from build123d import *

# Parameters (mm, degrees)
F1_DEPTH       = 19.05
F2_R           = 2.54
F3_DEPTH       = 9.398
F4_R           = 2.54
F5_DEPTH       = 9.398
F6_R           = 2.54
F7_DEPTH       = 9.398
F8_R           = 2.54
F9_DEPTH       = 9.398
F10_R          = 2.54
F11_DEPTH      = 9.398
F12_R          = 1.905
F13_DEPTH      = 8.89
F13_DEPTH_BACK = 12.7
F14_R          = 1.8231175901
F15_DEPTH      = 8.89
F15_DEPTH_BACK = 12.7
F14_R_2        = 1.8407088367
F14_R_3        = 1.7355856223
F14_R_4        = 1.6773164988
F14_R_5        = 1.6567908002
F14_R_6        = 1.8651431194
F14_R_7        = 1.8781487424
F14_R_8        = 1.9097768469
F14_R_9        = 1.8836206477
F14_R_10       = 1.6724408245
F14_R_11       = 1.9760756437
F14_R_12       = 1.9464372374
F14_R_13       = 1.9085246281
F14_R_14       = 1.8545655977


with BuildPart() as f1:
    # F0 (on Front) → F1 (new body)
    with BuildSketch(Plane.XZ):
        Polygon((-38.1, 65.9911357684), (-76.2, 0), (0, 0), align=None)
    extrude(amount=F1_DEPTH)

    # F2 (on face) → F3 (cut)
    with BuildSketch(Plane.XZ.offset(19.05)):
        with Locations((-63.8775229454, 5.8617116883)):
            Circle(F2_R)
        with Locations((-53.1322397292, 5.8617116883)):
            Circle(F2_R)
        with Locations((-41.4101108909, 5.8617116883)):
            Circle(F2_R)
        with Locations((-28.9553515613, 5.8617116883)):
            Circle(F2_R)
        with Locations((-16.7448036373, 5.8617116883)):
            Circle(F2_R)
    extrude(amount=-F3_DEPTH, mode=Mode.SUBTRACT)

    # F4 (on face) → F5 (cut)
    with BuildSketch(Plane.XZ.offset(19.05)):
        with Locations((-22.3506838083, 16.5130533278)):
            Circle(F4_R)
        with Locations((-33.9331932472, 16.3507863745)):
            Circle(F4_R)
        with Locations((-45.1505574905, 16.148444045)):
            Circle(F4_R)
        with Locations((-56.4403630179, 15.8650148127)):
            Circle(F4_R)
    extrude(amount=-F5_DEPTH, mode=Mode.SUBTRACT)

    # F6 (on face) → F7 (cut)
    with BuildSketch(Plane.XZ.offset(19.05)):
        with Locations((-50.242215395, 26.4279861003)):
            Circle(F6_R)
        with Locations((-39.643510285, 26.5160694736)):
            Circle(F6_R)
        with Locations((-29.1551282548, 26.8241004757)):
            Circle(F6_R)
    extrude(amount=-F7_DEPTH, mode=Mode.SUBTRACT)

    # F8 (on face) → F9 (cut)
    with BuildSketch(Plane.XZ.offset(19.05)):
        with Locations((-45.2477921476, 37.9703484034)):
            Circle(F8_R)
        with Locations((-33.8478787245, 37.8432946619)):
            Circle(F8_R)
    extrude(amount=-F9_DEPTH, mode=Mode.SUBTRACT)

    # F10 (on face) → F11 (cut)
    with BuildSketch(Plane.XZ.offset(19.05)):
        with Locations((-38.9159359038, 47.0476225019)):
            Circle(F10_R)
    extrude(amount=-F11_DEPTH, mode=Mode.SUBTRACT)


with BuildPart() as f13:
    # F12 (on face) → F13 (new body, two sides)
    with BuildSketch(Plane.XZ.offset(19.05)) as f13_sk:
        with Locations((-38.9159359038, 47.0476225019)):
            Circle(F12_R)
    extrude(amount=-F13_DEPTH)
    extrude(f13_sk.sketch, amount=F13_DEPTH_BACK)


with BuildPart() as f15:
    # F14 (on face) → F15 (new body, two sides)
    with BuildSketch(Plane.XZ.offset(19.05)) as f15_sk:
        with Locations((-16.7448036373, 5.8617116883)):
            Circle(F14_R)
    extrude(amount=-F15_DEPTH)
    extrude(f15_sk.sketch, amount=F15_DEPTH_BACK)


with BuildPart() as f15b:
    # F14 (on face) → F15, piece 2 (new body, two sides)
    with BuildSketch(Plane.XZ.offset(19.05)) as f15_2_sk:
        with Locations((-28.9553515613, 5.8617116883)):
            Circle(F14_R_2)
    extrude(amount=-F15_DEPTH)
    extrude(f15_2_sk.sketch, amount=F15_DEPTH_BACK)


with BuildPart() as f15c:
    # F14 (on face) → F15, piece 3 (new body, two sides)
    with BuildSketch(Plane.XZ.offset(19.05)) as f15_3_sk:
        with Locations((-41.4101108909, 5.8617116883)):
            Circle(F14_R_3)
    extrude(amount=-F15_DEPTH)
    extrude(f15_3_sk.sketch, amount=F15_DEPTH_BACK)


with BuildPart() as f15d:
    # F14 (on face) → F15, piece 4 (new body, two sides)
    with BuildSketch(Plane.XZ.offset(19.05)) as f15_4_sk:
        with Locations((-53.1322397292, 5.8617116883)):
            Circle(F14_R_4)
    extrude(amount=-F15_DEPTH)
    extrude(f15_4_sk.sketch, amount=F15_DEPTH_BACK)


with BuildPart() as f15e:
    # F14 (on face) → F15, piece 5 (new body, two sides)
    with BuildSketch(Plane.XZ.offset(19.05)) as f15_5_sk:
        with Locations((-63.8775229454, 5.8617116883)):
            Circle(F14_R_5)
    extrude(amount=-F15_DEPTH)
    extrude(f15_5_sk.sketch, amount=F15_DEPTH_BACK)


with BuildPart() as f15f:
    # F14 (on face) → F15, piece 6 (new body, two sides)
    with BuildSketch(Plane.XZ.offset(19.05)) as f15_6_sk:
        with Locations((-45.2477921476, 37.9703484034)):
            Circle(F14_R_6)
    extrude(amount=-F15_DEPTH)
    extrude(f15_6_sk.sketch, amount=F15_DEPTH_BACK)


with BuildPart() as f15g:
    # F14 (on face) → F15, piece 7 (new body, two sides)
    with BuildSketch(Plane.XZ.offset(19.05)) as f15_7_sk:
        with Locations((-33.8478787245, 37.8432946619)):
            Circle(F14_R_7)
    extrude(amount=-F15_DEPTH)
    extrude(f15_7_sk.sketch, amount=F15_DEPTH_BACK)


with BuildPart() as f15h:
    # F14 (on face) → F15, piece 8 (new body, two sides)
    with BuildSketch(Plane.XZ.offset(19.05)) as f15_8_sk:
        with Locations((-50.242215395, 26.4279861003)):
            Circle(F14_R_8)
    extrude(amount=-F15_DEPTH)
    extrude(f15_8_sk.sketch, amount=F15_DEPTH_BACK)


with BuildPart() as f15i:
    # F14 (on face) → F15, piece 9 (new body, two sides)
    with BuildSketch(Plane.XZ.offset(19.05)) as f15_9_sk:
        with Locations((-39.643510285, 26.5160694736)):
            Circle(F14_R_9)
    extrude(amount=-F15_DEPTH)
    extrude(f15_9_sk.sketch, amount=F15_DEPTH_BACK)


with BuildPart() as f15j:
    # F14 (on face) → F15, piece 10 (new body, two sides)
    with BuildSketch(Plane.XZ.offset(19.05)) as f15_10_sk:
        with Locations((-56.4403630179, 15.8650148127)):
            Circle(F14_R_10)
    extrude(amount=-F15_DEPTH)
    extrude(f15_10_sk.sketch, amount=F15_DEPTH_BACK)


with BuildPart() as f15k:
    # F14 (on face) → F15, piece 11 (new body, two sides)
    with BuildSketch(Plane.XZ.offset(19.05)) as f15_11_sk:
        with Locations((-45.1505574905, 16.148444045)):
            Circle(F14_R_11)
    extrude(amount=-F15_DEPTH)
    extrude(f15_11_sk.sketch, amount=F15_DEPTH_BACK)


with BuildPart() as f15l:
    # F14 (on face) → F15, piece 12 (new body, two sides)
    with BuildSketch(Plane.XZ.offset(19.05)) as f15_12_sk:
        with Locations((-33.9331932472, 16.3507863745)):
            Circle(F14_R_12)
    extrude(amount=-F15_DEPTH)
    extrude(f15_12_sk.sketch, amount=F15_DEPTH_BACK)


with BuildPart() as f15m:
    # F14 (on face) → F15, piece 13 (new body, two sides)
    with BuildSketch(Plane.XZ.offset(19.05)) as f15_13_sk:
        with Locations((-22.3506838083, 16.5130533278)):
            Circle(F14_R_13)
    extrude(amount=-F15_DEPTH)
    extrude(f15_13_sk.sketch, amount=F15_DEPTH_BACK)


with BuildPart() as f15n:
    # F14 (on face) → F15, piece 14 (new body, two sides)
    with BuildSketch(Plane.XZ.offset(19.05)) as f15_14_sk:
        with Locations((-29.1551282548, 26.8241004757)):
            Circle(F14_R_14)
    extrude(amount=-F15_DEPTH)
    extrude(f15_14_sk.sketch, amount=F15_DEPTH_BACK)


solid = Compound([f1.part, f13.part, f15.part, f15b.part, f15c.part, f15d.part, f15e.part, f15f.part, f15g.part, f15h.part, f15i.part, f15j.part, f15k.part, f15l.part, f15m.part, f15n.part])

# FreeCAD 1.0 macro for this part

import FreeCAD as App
import Part
import Sketcher
Q = App.Units.Quantity


def add_polygon(sketch, points):
    """Adds a closed chain of lines whose ends are joined by coincident constraints."""
    first, n = sketch.GeometryCount, len(points)
    for a, b in zip(points, points[1:] + points[:1]):
        sketch.addGeometry(Part.LineSegment(App.Vector(*a, 0), App.Vector(*b, 0)), False)
    for i in range(n):
        sketch.addConstraint(Sketcher.Constraint("Coincident", first + i, 2, first + (i + 1) % n, 1))

doc = App.newDocument("Part")
body = doc.addObject("PartDesign::Body", "Body")

sketch1 = body.newObject("Sketcher::SketchObject", "Sketch")
sketch1.AttachmentSupport = (doc.getObject("XZ_Plane"), [""])
sketch1.MapMode = "FlatFace"
add_polygon(sketch1, [(-38, 66), (-76, 0), (0, 0)])
sketch1.addConstraint([
    Sketcher.Constraint("Horizontal", 1),
    Sketcher.Constraint("Coincident", 1, 2, -1, 1),
    Sketcher.Constraint("Equal", 0, 2),
    Sketcher.Constraint("DistanceX", 1, 1, 1, 2, Q("3 in")),
    Sketcher.Constraint("Distance", 0, Q("3 in")),
])
pad1 = body.newObject("PartDesign::Pad", "Pad")
pad1.Profile = sketch1
pad1.Length = Q("0.75 in")

sketch2 = body.newObject("Sketcher::SketchObject", "Sketch001")
sketch2.AttachmentSupport = (doc.getObject("XZ_Plane"), [""])
sketch2.MapMode = "FlatFace"
sketch2.AttachmentOffset = App.Placement(App.Vector(0, 0, 0.75 * 25.4), App.Rotation())
sketch2.addGeometry([
    Part.Circle(App.Vector(-63.9, 5.9, 0), App.Vector(0, 0, 1), 2.5),
    Part.Circle(App.Vector(-53.1, 5.9, 0), App.Vector(0, 0, 1), 2.5),
    Part.Circle(App.Vector(-41.4, 5.9, 0), App.Vector(0, 0, 1), 2.5),
    Part.Circle(App.Vector(-29, 5.9, 0), App.Vector(0, 0, 1), 2.5),
    Part.Circle(App.Vector(-16.7, 5.9, 0), App.Vector(0, 0, 1), 2.5),
], False)
sketch2.addConstraint([
    Sketcher.Constraint("Equal", 0, 1),
    Sketcher.Constraint("Equal", 1, 2),
    Sketcher.Constraint("Equal", 2, 3),
    Sketcher.Constraint("Equal", 3, 4),
    Sketcher.Constraint("Horizontal", 0, 3, 1, 3),
    Sketcher.Constraint("Horizontal", 1, 3, 2, 3),
    Sketcher.Constraint("Horizontal", 2, 3, 3, 3),
    Sketcher.Constraint("Horizontal", 3, 3, 4, 3),
    Sketcher.Constraint("Diameter", 0, Q("0.2 in")),
    Sketcher.Constraint("DistanceY", -1, 1, 0, 3, Q("5.861712 mm")),
    Sketcher.Constraint("DistanceX", 1, 3, -1, 1, Q("53.13224 mm")),
    Sketcher.Constraint("DistanceX", 2, 3, -1, 1, Q("41.410111 mm")),
    Sketcher.Constraint("DistanceX", 3, 3, -1, 1, Q("28.955352 mm")),
    Sketcher.Constraint("DistanceX", 0, 3, 3, 3, Q("34.922171 mm")),
    Sketcher.Constraint("DistanceX", 0, 3, 4, 3, Q("47.132719 mm")),
])
pocket1 = body.newObject("PartDesign::Pocket", "Pocket")
pocket1.Profile = sketch2
pocket1.Length = Q("0.37 in")

sketch3 = body.newObject("Sketcher::SketchObject", "Sketch002")
sketch3.AttachmentSupport = (doc.getObject("XZ_Plane"), [""])
sketch3.MapMode = "FlatFace"
sketch3.AttachmentOffset = App.Placement(App.Vector(0, 0, 0.75 * 25.4), App.Rotation())
sketch3.addGeometry([
    Part.Circle(App.Vector(-22.4, 16.5, 0), App.Vector(0, 0, 1), 2.5),
    Part.Circle(App.Vector(-33.9, 16.4, 0), App.Vector(0, 0, 1), 2.5),
    Part.Circle(App.Vector(-45.2, 16.1, 0), App.Vector(0, 0, 1), 2.5),
    Part.Circle(App.Vector(-56.4, 15.9, 0), App.Vector(0, 0, 1), 2.5),
], False)
sketch3.addConstraint([
    Sketcher.Constraint("Equal", 0, 1),
    Sketcher.Constraint("Equal", 1, 2),
    Sketcher.Constraint("Equal", 2, 3),
    Sketcher.Constraint("Diameter", 0, Q("0.2 in")),
    Sketcher.Constraint("DistanceX", 1, 3, 0, 3, Q("11.582509 mm")),
    Sketcher.Constraint("DistanceY", 2, 3, 0, 3, Q("0.364609 mm")),
    Sketcher.Constraint("DistanceY", 3, 3, 2, 3, Q("0.283429 mm")),
    Sketcher.Constraint("DistanceX", 3, 3, 1, 3, Q("22.50717 mm")),
    Sketcher.Constraint("DistanceY", 3, 3, 1, 3, Q("0.485772 mm")),
    Sketcher.Constraint("DistanceX", 0, 3, -1, 1, Q("22.350684 mm")),
    Sketcher.Constraint("DistanceY", -1, 1, 0, 3, Q("16.513053 mm")),
    Sketcher.Constraint("DistanceX", 2, 3, -1, 1, Q("45.150557 mm")),
])
pocket2 = body.newObject("PartDesign::Pocket", "Pocket001")
pocket2.Profile = sketch3
pocket2.Length = Q("0.37 in")

sketch4 = body.newObject("Sketcher::SketchObject", "Sketch003")
sketch4.AttachmentSupport = (doc.getObject("XZ_Plane"), [""])
sketch4.MapMode = "FlatFace"
sketch4.AttachmentOffset = App.Placement(App.Vector(0, 0, 0.75 * 25.4), App.Rotation())
sketch4.addGeometry([
    Part.Circle(App.Vector(-50.2, 26.4, 0), App.Vector(0, 0, 1), 2.5),
    Part.Circle(App.Vector(-39.6, 26.5, 0), App.Vector(0, 0, 1), 2.5),
    Part.Circle(App.Vector(-29.2, 26.8, 0), App.Vector(0, 0, 1), 2.5),
], False)
sketch4.addConstraint([
    Sketcher.Constraint("Equal", 0, 1),
    Sketcher.Constraint("Equal", 1, 2),
    Sketcher.Constraint("Diameter", 0, Q("0.2 in")),
    Sketcher.Constraint("DistanceY", -1, 1, 2, 3, Q("26.8241 mm")),
    Sketcher.Constraint("DistanceX", 1, 3, -1, 1, Q("39.64351 mm")),
    Sketcher.Constraint("DistanceY", -1, 1, 1, 3, Q("26.516069 mm")),
    Sketcher.Constraint("DistanceX", 2, 3, -1, 1, Q("29.155128 mm")),
    Sketcher.Constraint("DistanceX", 0, 3, -1, 1, Q("50.242215 mm")),
    Sketcher.Constraint("DistanceY", -1, 1, 0, 3, Q("26.427986 mm")),
])
pocket3 = body.newObject("PartDesign::Pocket", "Pocket002")
pocket3.Profile = sketch4
pocket3.Length = Q("0.37 in")

sketch5 = body.newObject("Sketcher::SketchObject", "Sketch004")
sketch5.AttachmentSupport = (doc.getObject("XZ_Plane"), [""])
sketch5.MapMode = "FlatFace"
sketch5.AttachmentOffset = App.Placement(App.Vector(0, 0, 0.75 * 25.4), App.Rotation())
sketch5.addGeometry([
    Part.Circle(App.Vector(-45.2, 38, 0), App.Vector(0, 0, 1), 2.5),
    Part.Circle(App.Vector(-33.8, 37.8, 0), App.Vector(0, 0, 1), 2.5),
], False)
sketch5.addConstraint([
    Sketcher.Constraint("Equal", 0, 1),
    Sketcher.Constraint("Diameter", 0, Q("0.2 in")),
    Sketcher.Constraint("DistanceY", -1, 1, 0, 3, Q("37.970348 mm")),
    Sketcher.Constraint("DistanceX", 1, 3, -1, 1, Q("33.847879 mm")),
    Sketcher.Constraint("DistanceX", 0, 3, -1, 1, Q("45.247792 mm")),
    Sketcher.Constraint("DistanceY", -1, 1, 1, 3, Q("37.843295 mm")),
])
pocket4 = body.newObject("PartDesign::Pocket", "Pocket003")
pocket4.Profile = sketch5
pocket4.Length = Q("0.37 in")

sketch6 = body.newObject("Sketcher::SketchObject", "Sketch005")
sketch6.AttachmentSupport = (doc.getObject("XZ_Plane"), [""])
sketch6.MapMode = "FlatFace"
sketch6.AttachmentOffset = App.Placement(App.Vector(0, 0, 0.75 * 25.4), App.Rotation())
sketch6.addGeometry(Part.Circle(App.Vector(-38.9, 47, 0), App.Vector(0, 0, 1), 2.5), False)
sketch6.addConstraint([
    Sketcher.Constraint("Diameter", 0, Q("0.2 in")),
    Sketcher.Constraint("DistanceX", 0, 3, -1, 1, Q("38.915936 mm")),
    Sketcher.Constraint("DistanceY", -1, 1, 0, 3, Q("47.047623 mm")),
])
pocket5 = body.newObject("PartDesign::Pocket", "Pocket004")
pocket5.Profile = sketch6
pocket5.Length = Q("0.37 in")
body2 = doc.addObject("PartDesign::Body", "Body001")

sketch7 = body2.newObject("Sketcher::SketchObject", "Sketch006")
sketch7.AttachmentSupport = (doc.getObject("XZ_Plane001"), [""])
sketch7.MapMode = "FlatFace"
sketch7.AttachmentOffset = App.Placement(App.Vector(0, 0, 0.75 * 25.4), App.Rotation())
sketch7.addGeometry(Part.Circle(App.Vector(-38.9, 47, 0), App.Vector(0, 0, 1), 1.9), False)
sketch7.addConstraint([
    Sketcher.Constraint("Diameter", 0, Q("0.15 in")),
    Sketcher.Constraint("DistanceX", 0, 3, -1, 1, Q("38.915936 mm")),
    Sketcher.Constraint("DistanceY", -1, 1, 0, 3, Q("47.047623 mm")),
])
pad2 = body2.newObject("PartDesign::Pad", "Pad001")
pad2.Profile = sketch7
pad2.Type = "TwoLengths"
pad2.Length = Q("0.35 in")
pad2.Length2 = Q("0.5 in")
pad2.Reversed = True
body3 = doc.addObject("PartDesign::Body", "Body002")

sketch8 = body3.newObject("Sketcher::SketchObject", "Sketch007")
sketch8.AttachmentSupport = (doc.getObject("XZ_Plane002"), [""])
sketch8.MapMode = "FlatFace"
sketch8.AttachmentOffset = App.Placement(App.Vector(0, 0, 0.75 * 25.4), App.Rotation())
sketch8.addGeometry(Part.Circle(App.Vector(-16.7, 5.9, 0), App.Vector(0, 0, 1), 1.8), False)
sketch8.addConstraint([
    Sketcher.Constraint("Diameter", 0, Q("3.646235 mm")),
    Sketcher.Constraint("DistanceY", -1, 1, 0, 3, Q("5.861712 mm")),
    Sketcher.Constraint("DistanceX", 0, 3, -1, 1, Q("16.744804 mm")),
])
pad3 = body3.newObject("PartDesign::Pad", "Pad002")
pad3.Profile = sketch8
pad3.Type = "TwoLengths"
pad3.Length = Q("0.35 in")
pad3.Length2 = Q("0.5 in")
pad3.Reversed = True
body4 = doc.addObject("PartDesign::Body", "Body003")

sketch9 = body4.newObject("Sketcher::SketchObject", "Sketch008")
sketch9.AttachmentSupport = (doc.getObject("XZ_Plane003"), [""])
sketch9.MapMode = "FlatFace"
sketch9.AttachmentOffset = App.Placement(App.Vector(0, 0, 0.75 * 25.4), App.Rotation())
sketch9.addGeometry(Part.Circle(App.Vector(-29, 5.9, 0), App.Vector(0, 0, 1), 1.8), False)
sketch9.addConstraint([
    Sketcher.Constraint("Diameter", 0, Q("3.681418 mm")),
    Sketcher.Constraint("DistanceX", 0, 3, -1, 1, Q("28.955352 mm")),
    Sketcher.Constraint("DistanceY", -1, 1, 0, 3, Q("5.861712 mm")),
])
pad4 = body4.newObject("PartDesign::Pad", "Pad003")
pad4.Profile = sketch9
pad4.Type = "TwoLengths"
pad4.Length = Q("0.35 in")
pad4.Length2 = Q("0.5 in")
pad4.Reversed = True
body5 = doc.addObject("PartDesign::Body", "Body004")

sketch10 = body5.newObject("Sketcher::SketchObject", "Sketch009")
sketch10.AttachmentSupport = (doc.getObject("XZ_Plane004"), [""])
sketch10.MapMode = "FlatFace"
sketch10.AttachmentOffset = App.Placement(App.Vector(0, 0, 0.75 * 25.4), App.Rotation())
sketch10.addGeometry(Part.Circle(App.Vector(-41.4, 5.9, 0), App.Vector(0, 0, 1), 1.7), False)
sketch10.addConstraint([
    Sketcher.Constraint("Diameter", 0, Q("3.471171 mm")),
    Sketcher.Constraint("DistanceX", 0, 3, -1, 1, Q("41.410111 mm")),
    Sketcher.Constraint("DistanceY", -1, 1, 0, 3, Q("5.861712 mm")),
])
pad5 = body5.newObject("PartDesign::Pad", "Pad004")
pad5.Profile = sketch10
pad5.Type = "TwoLengths"
pad5.Length = Q("0.35 in")
pad5.Length2 = Q("0.5 in")
pad5.Reversed = True
body6 = doc.addObject("PartDesign::Body", "Body005")

sketch11 = body6.newObject("Sketcher::SketchObject", "Sketch010")
sketch11.AttachmentSupport = (doc.getObject("XZ_Plane005"), [""])
sketch11.MapMode = "FlatFace"
sketch11.AttachmentOffset = App.Placement(App.Vector(0, 0, 0.75 * 25.4), App.Rotation())
sketch11.addGeometry(Part.Circle(App.Vector(-53.1, 5.9, 0), App.Vector(0, 0, 1), 1.7), False)
sketch11.addConstraint([
    Sketcher.Constraint("Diameter", 0, Q("3.354633 mm")),
    Sketcher.Constraint("DistanceX", 0, 3, -1, 1, Q("53.13224 mm")),
    Sketcher.Constraint("DistanceY", -1, 1, 0, 3, Q("5.861712 mm")),
])
pad6 = body6.newObject("PartDesign::Pad", "Pad005")
pad6.Profile = sketch11
pad6.Type = "TwoLengths"
pad6.Length = Q("0.35 in")
pad6.Length2 = Q("0.5 in")
pad6.Reversed = True
body7 = doc.addObject("PartDesign::Body", "Body006")

sketch12 = body7.newObject("Sketcher::SketchObject", "Sketch011")
sketch12.AttachmentSupport = (doc.getObject("XZ_Plane006"), [""])
sketch12.MapMode = "FlatFace"
sketch12.AttachmentOffset = App.Placement(App.Vector(0, 0, 0.75 * 25.4), App.Rotation())
sketch12.addGeometry(Part.Circle(App.Vector(-63.9, 5.9, 0), App.Vector(0, 0, 1), 1.7), False)
sketch12.addConstraint([
    Sketcher.Constraint("Diameter", 0, Q("3.313582 mm")),
    Sketcher.Constraint("DistanceY", -1, 1, 0, 3, Q("5.861712 mm")),
    Sketcher.Constraint("DistanceX", 0, 3, -1, 1, Q("63.877523 mm")),
])
pad7 = body7.newObject("PartDesign::Pad", "Pad006")
pad7.Profile = sketch12
pad7.Type = "TwoLengths"
pad7.Length = Q("0.35 in")
pad7.Length2 = Q("0.5 in")
pad7.Reversed = True
body8 = doc.addObject("PartDesign::Body", "Body007")

sketch13 = body8.newObject("Sketcher::SketchObject", "Sketch012")
sketch13.AttachmentSupport = (doc.getObject("XZ_Plane007"), [""])
sketch13.MapMode = "FlatFace"
sketch13.AttachmentOffset = App.Placement(App.Vector(0, 0, 0.75 * 25.4), App.Rotation())
sketch13.addGeometry(Part.Circle(App.Vector(-45.2, 38, 0), App.Vector(0, 0, 1), 1.9), False)
sketch13.addConstraint([
    Sketcher.Constraint("Diameter", 0, Q("3.730286 mm")),
    Sketcher.Constraint("DistanceY", -1, 1, 0, 3, Q("37.970348 mm")),
    Sketcher.Constraint("DistanceX", 0, 3, -1, 1, Q("45.247792 mm")),
])
pad8 = body8.newObject("PartDesign::Pad", "Pad007")
pad8.Profile = sketch13
pad8.Type = "TwoLengths"
pad8.Length = Q("0.35 in")
pad8.Length2 = Q("0.5 in")
pad8.Reversed = True
body9 = doc.addObject("PartDesign::Body", "Body008")

sketch14 = body9.newObject("Sketcher::SketchObject", "Sketch013")
sketch14.AttachmentSupport = (doc.getObject("XZ_Plane008"), [""])
sketch14.MapMode = "FlatFace"
sketch14.AttachmentOffset = App.Placement(App.Vector(0, 0, 0.75 * 25.4), App.Rotation())
sketch14.addGeometry(Part.Circle(App.Vector(-33.8, 37.8, 0), App.Vector(0, 0, 1), 1.9), False)
sketch14.addConstraint([
    Sketcher.Constraint("Diameter", 0, Q("3.756297 mm")),
    Sketcher.Constraint("DistanceX", 0, 3, -1, 1, Q("33.847879 mm")),
    Sketcher.Constraint("DistanceY", -1, 1, 0, 3, Q("37.843295 mm")),
])
pad9 = body9.newObject("PartDesign::Pad", "Pad008")
pad9.Profile = sketch14
pad9.Type = "TwoLengths"
pad9.Length = Q("0.35 in")
pad9.Length2 = Q("0.5 in")
pad9.Reversed = True
body10 = doc.addObject("PartDesign::Body", "Body009")

sketch15 = body10.newObject("Sketcher::SketchObject", "Sketch014")
sketch15.AttachmentSupport = (doc.getObject("XZ_Plane009"), [""])
sketch15.MapMode = "FlatFace"
sketch15.AttachmentOffset = App.Placement(App.Vector(0, 0, 0.75 * 25.4), App.Rotation())
sketch15.addGeometry(Part.Circle(App.Vector(-50.2, 26.4, 0), App.Vector(0, 0, 1), 1.9), False)
sketch15.addConstraint([
    Sketcher.Constraint("Diameter", 0, Q("3.819554 mm")),
    Sketcher.Constraint("DistanceX", 0, 3, -1, 1, Q("50.242215 mm")),
    Sketcher.Constraint("DistanceY", -1, 1, 0, 3, Q("26.427986 mm")),
])
pad10 = body10.newObject("PartDesign::Pad", "Pad009")
pad10.Profile = sketch15
pad10.Type = "TwoLengths"
pad10.Length = Q("0.35 in")
pad10.Length2 = Q("0.5 in")
pad10.Reversed = True
body11 = doc.addObject("PartDesign::Body", "Body010")

sketch16 = body11.newObject("Sketcher::SketchObject", "Sketch015")
sketch16.AttachmentSupport = (doc.getObject("XZ_Plane010"), [""])
sketch16.MapMode = "FlatFace"
sketch16.AttachmentOffset = App.Placement(App.Vector(0, 0, 0.75 * 25.4), App.Rotation())
sketch16.addGeometry(Part.Circle(App.Vector(-39.6, 26.5, 0), App.Vector(0, 0, 1), 1.9), False)
sketch16.addConstraint([
    Sketcher.Constraint("Diameter", 0, Q("3.767241 mm")),
    Sketcher.Constraint("DistanceX", 0, 3, -1, 1, Q("39.64351 mm")),
    Sketcher.Constraint("DistanceY", -1, 1, 0, 3, Q("26.516069 mm")),
])
pad11 = body11.newObject("PartDesign::Pad", "Pad010")
pad11.Profile = sketch16
pad11.Type = "TwoLengths"
pad11.Length = Q("0.35 in")
pad11.Length2 = Q("0.5 in")
pad11.Reversed = True
body12 = doc.addObject("PartDesign::Body", "Body011")

sketch17 = body12.newObject("Sketcher::SketchObject", "Sketch016")
sketch17.AttachmentSupport = (doc.getObject("XZ_Plane011"), [""])
sketch17.MapMode = "FlatFace"
sketch17.AttachmentOffset = App.Placement(App.Vector(0, 0, 0.75 * 25.4), App.Rotation())
sketch17.addGeometry(Part.Circle(App.Vector(-56.4, 15.9, 0), App.Vector(0, 0, 1), 1.7), False)
sketch17.addConstraint([
    Sketcher.Constraint("Diameter", 0, Q("3.344882 mm")),
    Sketcher.Constraint("DistanceX", 0, 3, -1, 1, Q("56.440363 mm")),
    Sketcher.Constraint("DistanceY", -1, 1, 0, 3, Q("15.865015 mm")),
])
pad12 = body12.newObject("PartDesign::Pad", "Pad011")
pad12.Profile = sketch17
pad12.Type = "TwoLengths"
pad12.Length = Q("0.35 in")
pad12.Length2 = Q("0.5 in")
pad12.Reversed = True
body13 = doc.addObject("PartDesign::Body", "Body012")

sketch18 = body13.newObject("Sketcher::SketchObject", "Sketch017")
sketch18.AttachmentSupport = (doc.getObject("XZ_Plane012"), [""])
sketch18.MapMode = "FlatFace"
sketch18.AttachmentOffset = App.Placement(App.Vector(0, 0, 0.75 * 25.4), App.Rotation())
sketch18.addGeometry(Part.Circle(App.Vector(-45.2, 16.1, 0), App.Vector(0, 0, 1), 2), False)
sketch18.addConstraint([
    Sketcher.Constraint("Diameter", 0, Q("3.952151 mm")),
    Sketcher.Constraint("DistanceX", 0, 3, -1, 1, Q("45.150557 mm")),
    Sketcher.Constraint("DistanceY", -1, 1, 0, 3, Q("16.148444 mm")),
])
pad13 = body13.newObject("PartDesign::Pad", "Pad012")
pad13.Profile = sketch18
pad13.Type = "TwoLengths"
pad13.Length = Q("0.35 in")
pad13.Length2 = Q("0.5 in")
pad13.Reversed = True
body14 = doc.addObject("PartDesign::Body", "Body013")

sketch19 = body14.newObject("Sketcher::SketchObject", "Sketch018")
sketch19.AttachmentSupport = (doc.getObject("XZ_Plane013"), [""])
sketch19.MapMode = "FlatFace"
sketch19.AttachmentOffset = App.Placement(App.Vector(0, 0, 0.75 * 25.4), App.Rotation())
sketch19.addGeometry(Part.Circle(App.Vector(-33.9, 16.4, 0), App.Vector(0, 0, 1), 1.9), False)
sketch19.addConstraint([
    Sketcher.Constraint("Diameter", 0, Q("3.892874 mm")),
    Sketcher.Constraint("DistanceX", 0, 3, -1, 1, Q("33.933193 mm")),
    Sketcher.Constraint("DistanceY", -1, 1, 0, 3, Q("16.350786 mm")),
])
pad14 = body14.newObject("PartDesign::Pad", "Pad013")
pad14.Profile = sketch19
pad14.Type = "TwoLengths"
pad14.Length = Q("0.35 in")
pad14.Length2 = Q("0.5 in")
pad14.Reversed = True
body15 = doc.addObject("PartDesign::Body", "Body014")

sketch20 = body15.newObject("Sketcher::SketchObject", "Sketch019")
sketch20.AttachmentSupport = (doc.getObject("XZ_Plane014"), [""])
sketch20.MapMode = "FlatFace"
sketch20.AttachmentOffset = App.Placement(App.Vector(0, 0, 0.75 * 25.4), App.Rotation())
sketch20.addGeometry(Part.Circle(App.Vector(-22.4, 16.5, 0), App.Vector(0, 0, 1), 1.9), False)
sketch20.addConstraint([
    Sketcher.Constraint("Diameter", 0, Q("3.817049 mm")),
    Sketcher.Constraint("DistanceX", 0, 3, -1, 1, Q("22.350684 mm")),
    Sketcher.Constraint("DistanceY", -1, 1, 0, 3, Q("16.513053 mm")),
])
pad15 = body15.newObject("PartDesign::Pad", "Pad014")
pad15.Profile = sketch20
pad15.Type = "TwoLengths"
pad15.Length = Q("0.35 in")
pad15.Length2 = Q("0.5 in")
pad15.Reversed = True
body16 = doc.addObject("PartDesign::Body", "Body015")

sketch21 = body16.newObject("Sketcher::SketchObject", "Sketch020")
sketch21.AttachmentSupport = (doc.getObject("XZ_Plane015"), [""])
sketch21.MapMode = "FlatFace"
sketch21.AttachmentOffset = App.Placement(App.Vector(0, 0, 0.75 * 25.4), App.Rotation())
sketch21.addGeometry(Part.Circle(App.Vector(-29.2, 26.8, 0), App.Vector(0, 0, 1), 1.9), False)
sketch21.addConstraint([
    Sketcher.Constraint("Diameter", 0, Q("3.709131 mm")),
    Sketcher.Constraint("DistanceY", -1, 1, 0, 3, Q("26.8241 mm")),
    Sketcher.Constraint("DistanceX", 0, 3, -1, 1, Q("29.155128 mm")),
])
pad16 = body16.newObject("PartDesign::Pad", "Pad015")
pad16.Profile = sketch21
pad16.Type = "TwoLengths"
pad16.Length = Q("0.35 in")
pad16.Length2 = Q("0.5 in")
pad16.Reversed = True

doc.recompute()
